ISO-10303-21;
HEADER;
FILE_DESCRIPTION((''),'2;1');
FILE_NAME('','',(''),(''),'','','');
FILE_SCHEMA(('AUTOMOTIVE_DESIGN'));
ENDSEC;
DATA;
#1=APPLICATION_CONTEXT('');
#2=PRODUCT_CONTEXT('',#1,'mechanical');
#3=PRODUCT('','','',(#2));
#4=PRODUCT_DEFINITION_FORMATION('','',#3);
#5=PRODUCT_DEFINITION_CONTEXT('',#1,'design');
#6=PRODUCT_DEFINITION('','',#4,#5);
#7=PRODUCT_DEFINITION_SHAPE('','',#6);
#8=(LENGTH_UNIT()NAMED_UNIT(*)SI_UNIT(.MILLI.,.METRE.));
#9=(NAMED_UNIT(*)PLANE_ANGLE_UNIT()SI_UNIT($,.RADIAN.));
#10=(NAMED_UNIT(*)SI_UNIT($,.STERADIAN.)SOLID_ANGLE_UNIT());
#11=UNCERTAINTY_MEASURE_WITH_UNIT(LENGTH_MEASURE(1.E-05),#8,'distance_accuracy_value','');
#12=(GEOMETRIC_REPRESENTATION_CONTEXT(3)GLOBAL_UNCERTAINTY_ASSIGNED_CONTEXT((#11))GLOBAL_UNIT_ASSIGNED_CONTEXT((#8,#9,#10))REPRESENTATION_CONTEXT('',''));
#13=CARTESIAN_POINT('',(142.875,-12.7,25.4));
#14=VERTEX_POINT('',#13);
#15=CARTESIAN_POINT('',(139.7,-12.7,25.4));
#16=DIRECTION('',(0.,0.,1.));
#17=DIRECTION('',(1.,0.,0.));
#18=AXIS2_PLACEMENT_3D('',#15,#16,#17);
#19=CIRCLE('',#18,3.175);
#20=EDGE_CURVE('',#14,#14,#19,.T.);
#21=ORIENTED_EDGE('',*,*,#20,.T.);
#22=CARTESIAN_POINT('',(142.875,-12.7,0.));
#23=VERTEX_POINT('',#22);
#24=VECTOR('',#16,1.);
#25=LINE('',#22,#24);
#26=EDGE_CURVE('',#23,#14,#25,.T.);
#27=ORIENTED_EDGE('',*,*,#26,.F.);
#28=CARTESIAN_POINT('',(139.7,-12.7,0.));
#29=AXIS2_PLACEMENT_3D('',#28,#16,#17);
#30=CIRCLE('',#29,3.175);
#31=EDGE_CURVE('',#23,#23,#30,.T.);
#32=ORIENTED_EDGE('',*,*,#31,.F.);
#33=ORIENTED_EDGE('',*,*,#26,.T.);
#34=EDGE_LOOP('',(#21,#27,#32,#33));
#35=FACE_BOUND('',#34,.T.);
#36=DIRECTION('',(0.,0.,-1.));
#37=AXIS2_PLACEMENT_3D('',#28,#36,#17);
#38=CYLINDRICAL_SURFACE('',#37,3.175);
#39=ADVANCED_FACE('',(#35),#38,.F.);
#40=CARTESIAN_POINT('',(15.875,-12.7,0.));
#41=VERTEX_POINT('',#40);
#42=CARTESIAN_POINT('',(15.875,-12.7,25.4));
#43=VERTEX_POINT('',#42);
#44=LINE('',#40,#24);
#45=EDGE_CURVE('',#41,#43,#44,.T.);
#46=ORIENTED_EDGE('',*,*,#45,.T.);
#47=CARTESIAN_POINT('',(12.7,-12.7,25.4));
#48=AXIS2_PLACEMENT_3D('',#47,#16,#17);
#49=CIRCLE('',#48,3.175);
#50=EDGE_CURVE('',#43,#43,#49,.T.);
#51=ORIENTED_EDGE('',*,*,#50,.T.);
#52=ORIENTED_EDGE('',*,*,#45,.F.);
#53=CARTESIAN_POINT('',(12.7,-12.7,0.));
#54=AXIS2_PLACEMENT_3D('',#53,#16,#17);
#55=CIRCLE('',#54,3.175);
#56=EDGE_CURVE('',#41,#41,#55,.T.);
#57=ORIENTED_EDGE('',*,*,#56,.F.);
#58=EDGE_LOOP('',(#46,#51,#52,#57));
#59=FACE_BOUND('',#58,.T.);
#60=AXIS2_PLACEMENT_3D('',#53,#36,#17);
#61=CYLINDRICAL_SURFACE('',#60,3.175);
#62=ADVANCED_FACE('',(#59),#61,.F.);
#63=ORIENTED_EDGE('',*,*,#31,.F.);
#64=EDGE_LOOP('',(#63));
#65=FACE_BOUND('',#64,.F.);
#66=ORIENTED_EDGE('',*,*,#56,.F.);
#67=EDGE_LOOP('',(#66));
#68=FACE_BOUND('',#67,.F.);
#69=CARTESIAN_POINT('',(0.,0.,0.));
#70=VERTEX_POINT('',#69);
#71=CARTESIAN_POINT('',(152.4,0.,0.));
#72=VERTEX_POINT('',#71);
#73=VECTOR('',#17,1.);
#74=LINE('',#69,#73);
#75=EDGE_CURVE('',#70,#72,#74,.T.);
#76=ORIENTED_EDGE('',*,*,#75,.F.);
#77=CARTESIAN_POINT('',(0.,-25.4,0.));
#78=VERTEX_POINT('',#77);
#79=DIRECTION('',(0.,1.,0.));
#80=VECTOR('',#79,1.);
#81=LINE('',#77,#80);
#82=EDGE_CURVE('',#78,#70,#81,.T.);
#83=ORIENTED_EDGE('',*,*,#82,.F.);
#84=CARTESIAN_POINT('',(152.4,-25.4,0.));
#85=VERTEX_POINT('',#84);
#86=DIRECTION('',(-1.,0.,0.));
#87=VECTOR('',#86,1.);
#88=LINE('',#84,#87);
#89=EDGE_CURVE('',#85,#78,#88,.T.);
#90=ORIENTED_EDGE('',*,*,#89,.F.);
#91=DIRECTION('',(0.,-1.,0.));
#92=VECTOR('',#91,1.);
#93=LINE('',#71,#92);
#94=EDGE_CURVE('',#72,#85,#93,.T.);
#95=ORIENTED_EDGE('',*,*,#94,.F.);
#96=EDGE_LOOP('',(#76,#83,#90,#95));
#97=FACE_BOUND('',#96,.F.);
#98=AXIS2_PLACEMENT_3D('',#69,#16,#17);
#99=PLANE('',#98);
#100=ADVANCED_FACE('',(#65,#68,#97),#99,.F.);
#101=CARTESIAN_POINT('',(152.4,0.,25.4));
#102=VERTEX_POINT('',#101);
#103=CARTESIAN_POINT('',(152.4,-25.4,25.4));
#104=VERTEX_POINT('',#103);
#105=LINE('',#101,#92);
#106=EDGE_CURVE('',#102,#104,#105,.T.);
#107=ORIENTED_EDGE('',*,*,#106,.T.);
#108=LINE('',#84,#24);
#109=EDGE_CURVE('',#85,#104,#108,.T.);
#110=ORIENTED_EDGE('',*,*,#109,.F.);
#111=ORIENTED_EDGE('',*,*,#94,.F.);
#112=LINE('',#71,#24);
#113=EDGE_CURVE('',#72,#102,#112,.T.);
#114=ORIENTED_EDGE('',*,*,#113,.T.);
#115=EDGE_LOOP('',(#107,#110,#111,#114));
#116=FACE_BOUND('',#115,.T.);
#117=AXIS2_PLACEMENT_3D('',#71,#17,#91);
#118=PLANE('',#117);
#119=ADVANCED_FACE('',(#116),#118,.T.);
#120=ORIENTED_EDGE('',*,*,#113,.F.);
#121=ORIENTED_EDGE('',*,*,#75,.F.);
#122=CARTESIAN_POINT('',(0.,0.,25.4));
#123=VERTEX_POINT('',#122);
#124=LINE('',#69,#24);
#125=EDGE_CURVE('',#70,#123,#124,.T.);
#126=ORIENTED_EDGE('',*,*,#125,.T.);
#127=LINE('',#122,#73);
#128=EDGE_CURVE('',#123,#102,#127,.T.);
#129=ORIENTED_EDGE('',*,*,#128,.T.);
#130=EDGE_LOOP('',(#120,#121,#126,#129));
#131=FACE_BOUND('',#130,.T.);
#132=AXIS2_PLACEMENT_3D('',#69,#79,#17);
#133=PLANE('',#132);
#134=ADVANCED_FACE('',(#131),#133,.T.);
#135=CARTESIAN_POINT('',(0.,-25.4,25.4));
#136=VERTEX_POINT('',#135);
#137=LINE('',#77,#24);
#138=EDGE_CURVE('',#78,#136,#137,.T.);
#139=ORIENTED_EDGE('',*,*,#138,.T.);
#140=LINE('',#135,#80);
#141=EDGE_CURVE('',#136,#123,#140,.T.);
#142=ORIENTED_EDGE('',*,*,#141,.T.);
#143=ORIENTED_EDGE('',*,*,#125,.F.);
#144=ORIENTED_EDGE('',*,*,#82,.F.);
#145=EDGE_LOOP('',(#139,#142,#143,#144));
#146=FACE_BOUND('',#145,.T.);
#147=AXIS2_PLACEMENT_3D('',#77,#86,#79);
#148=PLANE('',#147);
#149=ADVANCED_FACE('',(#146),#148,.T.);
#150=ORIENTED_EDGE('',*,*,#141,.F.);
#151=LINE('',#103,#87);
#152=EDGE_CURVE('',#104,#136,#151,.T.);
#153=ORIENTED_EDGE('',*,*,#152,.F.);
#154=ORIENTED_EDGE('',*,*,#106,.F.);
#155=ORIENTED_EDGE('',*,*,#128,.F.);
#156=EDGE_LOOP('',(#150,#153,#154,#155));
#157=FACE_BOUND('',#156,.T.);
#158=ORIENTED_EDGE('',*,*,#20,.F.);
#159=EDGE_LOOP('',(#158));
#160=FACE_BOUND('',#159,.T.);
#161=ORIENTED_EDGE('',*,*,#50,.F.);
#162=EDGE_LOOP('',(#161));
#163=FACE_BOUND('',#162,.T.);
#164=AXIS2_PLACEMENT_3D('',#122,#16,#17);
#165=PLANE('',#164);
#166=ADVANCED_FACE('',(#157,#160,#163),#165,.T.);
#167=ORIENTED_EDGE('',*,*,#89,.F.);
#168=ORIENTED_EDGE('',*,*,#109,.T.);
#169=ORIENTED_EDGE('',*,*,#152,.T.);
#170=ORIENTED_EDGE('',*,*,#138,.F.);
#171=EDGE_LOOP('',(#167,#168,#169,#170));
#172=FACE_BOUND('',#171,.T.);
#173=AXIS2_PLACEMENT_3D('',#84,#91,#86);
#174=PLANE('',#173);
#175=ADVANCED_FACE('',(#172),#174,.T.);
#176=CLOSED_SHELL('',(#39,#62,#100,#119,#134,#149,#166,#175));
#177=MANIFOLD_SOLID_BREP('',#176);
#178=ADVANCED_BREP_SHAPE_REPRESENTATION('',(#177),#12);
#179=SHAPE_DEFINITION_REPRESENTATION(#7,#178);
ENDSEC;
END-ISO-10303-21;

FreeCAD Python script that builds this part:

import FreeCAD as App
import Part
import Sketcher
from FreeCAD import Vector
Q = App.Units.Quantity


def add_polygon(sketch, points):
    """Adds a closed chain of lines whose ends are joined by coincident constraints."""
    first, n = sketch.GeometryCount, len(points)
    for a, b in zip(points, points[1:] + points[:1]):
        sketch.addGeometry(Part.LineSegment(App.Vector(*a, 0), App.Vector(*b, 0)), False)
    for i in range(n):
        sketch.addConstraint(Sketcher.Constraint("Coincident", first + i, 2, first + (i + 1) % n, 1))

doc = App.newDocument("Part")
body = doc.addObject("PartDesign::Body", "Body")

sketch1 = doc.addObject("Sketcher::SketchObject", "Sketch")
body.addObject(sketch1)
sketch1.AttachmentSupport = (doc.XY_Plane, [""])
sketch1.MapMode = "FlatFace"
add_polygon(sketch1, [(152.4, 0), (0, 0), (0, -25.4), (152.4, -25.4)])
sketch1.addGeometry(Part.Circle(Vector(12.7, -12.7, 0), Vector(0, 0, 1), 3.2), False)
sketch1.addGeometry(Part.Circle(Vector(139.7, -12.7, 0), Vector(0, 0, 1), 3.2), False)
sketch1.addConstraint([
    Sketcher.Constraint("Horizontal", 0),
    Sketcher.Constraint("Vertical", 1),
    Sketcher.Constraint("Horizontal", 2),
    Sketcher.Constraint("Vertical", 3),
    Sketcher.Constraint("Coincident", 0, 2, -1, 1),
    Sketcher.Constraint("Equal", 4, 5),
    Sketcher.Constraint("Horizontal", 4, 3, 5, 3),
    Sketcher.Constraint("Diameter", 4, Q("0.25 in")),
    Sketcher.Constraint("DistanceX", 0, 2, 0, 1, Q("6 in")),
    Sketcher.Constraint("DistanceY", 1, 2, 1, 1, Q("1 in")),
    Sketcher.Constraint("DistanceX", -1, 1, 4, 3, Q("0.5 in")),
    Sketcher.Constraint("DistanceY", 4, 3, -1, 1, Q("0.5 in")),
    Sketcher.Constraint("DistanceX", 5, 3, 2, 2, Q("0.5 in")),
])
pad1 = doc.addObject("PartDesign::Pad", "Pad")
body.addObject(pad1)
pad1.Profile = sketch1
pad1.Length = Q("1 in")

doc.recompute()
